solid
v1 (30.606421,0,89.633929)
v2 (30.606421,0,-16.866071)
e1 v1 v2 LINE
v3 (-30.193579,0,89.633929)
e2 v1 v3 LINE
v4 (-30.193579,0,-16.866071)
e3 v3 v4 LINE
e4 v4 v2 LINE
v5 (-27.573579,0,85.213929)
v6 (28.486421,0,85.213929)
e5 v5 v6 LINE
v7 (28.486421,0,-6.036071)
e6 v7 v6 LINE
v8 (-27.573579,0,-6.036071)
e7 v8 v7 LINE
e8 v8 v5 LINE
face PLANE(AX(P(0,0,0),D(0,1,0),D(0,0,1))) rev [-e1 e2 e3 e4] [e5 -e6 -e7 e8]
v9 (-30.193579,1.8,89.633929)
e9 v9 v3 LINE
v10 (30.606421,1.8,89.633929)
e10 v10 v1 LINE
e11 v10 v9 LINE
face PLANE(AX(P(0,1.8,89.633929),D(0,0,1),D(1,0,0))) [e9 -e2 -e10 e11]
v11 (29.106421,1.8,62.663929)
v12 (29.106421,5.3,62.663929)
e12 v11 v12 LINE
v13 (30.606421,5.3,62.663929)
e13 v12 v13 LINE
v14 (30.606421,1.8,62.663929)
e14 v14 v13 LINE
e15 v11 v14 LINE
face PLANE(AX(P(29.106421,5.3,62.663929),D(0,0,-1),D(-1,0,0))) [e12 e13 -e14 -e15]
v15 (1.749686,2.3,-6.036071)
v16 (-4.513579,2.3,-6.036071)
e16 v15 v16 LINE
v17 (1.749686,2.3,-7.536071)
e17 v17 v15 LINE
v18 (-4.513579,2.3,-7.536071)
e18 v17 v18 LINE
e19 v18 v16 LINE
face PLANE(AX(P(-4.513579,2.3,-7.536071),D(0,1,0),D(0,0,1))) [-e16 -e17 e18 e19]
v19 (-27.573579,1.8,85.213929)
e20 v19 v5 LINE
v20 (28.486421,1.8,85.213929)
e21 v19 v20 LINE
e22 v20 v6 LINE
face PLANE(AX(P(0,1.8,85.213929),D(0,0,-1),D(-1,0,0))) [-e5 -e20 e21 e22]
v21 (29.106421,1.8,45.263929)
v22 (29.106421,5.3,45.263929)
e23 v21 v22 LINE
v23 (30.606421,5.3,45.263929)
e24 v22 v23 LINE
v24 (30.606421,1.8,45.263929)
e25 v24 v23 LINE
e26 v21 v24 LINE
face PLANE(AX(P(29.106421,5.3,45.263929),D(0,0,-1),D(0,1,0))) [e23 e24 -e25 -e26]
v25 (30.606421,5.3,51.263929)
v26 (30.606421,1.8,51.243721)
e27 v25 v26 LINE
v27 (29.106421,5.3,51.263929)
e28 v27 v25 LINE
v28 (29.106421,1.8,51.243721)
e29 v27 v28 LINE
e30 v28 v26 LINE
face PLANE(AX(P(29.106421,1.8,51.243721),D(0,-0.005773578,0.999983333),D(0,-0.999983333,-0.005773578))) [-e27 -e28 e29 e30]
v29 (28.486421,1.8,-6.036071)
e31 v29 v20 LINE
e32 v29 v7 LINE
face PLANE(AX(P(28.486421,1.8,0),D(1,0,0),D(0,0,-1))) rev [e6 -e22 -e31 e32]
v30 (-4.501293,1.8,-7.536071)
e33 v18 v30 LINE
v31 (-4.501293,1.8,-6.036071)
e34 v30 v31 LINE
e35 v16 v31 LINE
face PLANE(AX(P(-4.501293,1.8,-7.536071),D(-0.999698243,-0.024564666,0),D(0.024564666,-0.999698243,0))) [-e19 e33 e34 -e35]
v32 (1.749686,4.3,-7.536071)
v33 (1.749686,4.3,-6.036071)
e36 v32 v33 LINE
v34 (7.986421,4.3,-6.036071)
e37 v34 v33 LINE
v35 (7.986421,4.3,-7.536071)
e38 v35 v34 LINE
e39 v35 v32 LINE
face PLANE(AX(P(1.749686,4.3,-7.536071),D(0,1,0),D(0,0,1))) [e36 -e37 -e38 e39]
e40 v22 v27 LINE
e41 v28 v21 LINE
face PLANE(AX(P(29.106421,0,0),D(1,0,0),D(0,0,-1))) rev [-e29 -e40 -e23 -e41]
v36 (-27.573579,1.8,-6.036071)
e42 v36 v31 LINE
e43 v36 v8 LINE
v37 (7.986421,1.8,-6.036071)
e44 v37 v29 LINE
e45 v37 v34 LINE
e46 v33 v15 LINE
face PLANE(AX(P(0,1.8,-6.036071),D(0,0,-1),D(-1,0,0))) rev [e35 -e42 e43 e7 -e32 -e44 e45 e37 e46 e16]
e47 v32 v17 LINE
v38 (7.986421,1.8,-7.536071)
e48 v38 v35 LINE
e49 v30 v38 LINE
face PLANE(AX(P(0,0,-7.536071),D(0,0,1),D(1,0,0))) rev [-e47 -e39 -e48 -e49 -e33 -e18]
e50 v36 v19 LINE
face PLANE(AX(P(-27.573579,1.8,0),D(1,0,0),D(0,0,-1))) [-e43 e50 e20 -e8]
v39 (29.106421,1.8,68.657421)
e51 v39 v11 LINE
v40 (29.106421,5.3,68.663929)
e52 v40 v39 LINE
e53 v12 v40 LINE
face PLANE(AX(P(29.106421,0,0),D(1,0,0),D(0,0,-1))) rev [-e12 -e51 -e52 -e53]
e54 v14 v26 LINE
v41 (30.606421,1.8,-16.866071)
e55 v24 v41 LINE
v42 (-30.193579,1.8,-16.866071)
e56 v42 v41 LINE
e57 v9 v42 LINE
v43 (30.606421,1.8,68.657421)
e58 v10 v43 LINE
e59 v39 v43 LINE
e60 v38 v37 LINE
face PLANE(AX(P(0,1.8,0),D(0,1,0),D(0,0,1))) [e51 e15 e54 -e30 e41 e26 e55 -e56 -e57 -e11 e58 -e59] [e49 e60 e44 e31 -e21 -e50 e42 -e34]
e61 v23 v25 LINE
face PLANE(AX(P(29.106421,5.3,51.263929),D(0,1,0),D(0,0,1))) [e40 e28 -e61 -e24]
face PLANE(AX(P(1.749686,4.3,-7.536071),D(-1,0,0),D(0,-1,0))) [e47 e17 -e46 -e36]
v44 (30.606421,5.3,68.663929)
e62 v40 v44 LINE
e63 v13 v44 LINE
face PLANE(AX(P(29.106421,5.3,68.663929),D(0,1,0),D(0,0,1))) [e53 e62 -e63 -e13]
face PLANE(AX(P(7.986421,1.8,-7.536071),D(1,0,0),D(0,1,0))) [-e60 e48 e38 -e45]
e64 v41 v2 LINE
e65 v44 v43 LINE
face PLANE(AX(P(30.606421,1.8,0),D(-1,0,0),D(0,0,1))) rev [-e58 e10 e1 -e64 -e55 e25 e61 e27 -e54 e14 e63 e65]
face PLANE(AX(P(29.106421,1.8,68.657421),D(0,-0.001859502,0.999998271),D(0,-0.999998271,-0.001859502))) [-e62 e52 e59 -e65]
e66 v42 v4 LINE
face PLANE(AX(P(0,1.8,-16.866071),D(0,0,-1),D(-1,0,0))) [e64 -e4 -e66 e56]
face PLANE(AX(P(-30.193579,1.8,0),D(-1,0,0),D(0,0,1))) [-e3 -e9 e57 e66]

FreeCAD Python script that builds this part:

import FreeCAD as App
import Part
import Sketcher
from FreeCAD import Vector
Q = App.Units.Quantity


def add_polygon(sketch, points):
    """Adds a closed chain of lines whose ends are joined by coincident constraints."""
    first, n = sketch.GeometryCount, len(points)
    for a, b in zip(points, points[1:] + points[:1]):
        sketch.addGeometry(Part.LineSegment(App.Vector(*a, 0), App.Vector(*b, 0)), False)
    for i in range(n):
        sketch.addConstraint(Sketcher.Constraint("Coincident", first + i, 2, first + (i + 1) % n, 1))

doc = App.newDocument("Part")
params = doc.addObject("Spreadsheet::Sheet", "Params")
for row, (alias, value) in enumerate([
    ("sketch1_width", "60.8 mm"),
    ("sketch1_height", "106.5 mm"),
    ("sketch1_width2", "56.06 mm"),
    ("sketch1_height2", "91.25 mm"),
    ("pad1_length", "1.8 mm"),
    ("sketch2_height", "2 mm"),
    ("sketch2_height2", "2.5 mm"),
    ("pad2_length", "1.5 mm"),
    ("sketch3_height", "6 mm"),
    ("sketch3_width", "3.5 mm"),
    ("pad3_length", "1.5 mm"),
], start=1):
    params.set(f"A{row}", alias)
    params.set(f"B{row}", "=" + value)
    params.setAlias(f"B{row}", alias)

body = doc.addObject("PartDesign::Body", "Body")

sketch1 = body.newObject("Sketcher::SketchObject", "Sketch")
sketch1.AttachmentSupport = (doc.getObject("XZ_Plane"), [""])
sketch1.MapMode = "FlatFace"
add_polygon(sketch1, [(31, -17), (-30, -17), (-30, 90), (31, 90)])
add_polygon(sketch1, [(-28, -6), (28, -6), (28, 85), (-28, 85)])
sketch1.addConstraint(Sketcher.Constraint("Horizontal", 0))
sketch1.addConstraint(Sketcher.Constraint("Vertical", 1))
sketch1.addConstraint(Sketcher.Constraint("Horizontal", 2))
sketch1.addConstraint(Sketcher.Constraint("Vertical", 3))
sketch1.addConstraint(Sketcher.Constraint("Horizontal", 4))
sketch1.addConstraint(Sketcher.Constraint("Vertical", 5))
sketch1.addConstraint(Sketcher.Constraint("Horizontal", 6))
sketch1.addConstraint(Sketcher.Constraint("Vertical", 7))
sketch1.addConstraint(Sketcher.Constraint("DistanceX", 0, 2, 0, 1, Q("60.8 mm")))
sketch1.addConstraint(Sketcher.Constraint("DistanceY", 1, 1, 1, 2, Q("106.5 mm")))
sketch1.addConstraint(Sketcher.Constraint("DistanceX", 4, 1, 4, 2, Q("56.06 mm")))
sketch1.addConstraint(Sketcher.Constraint("DistanceY", 5, 1, 5, 2, Q("91.25 mm")))
sketch1.addConstraint(Sketcher.Constraint("DistanceX", 4, 2, 3, 2, Q("2.12 mm")))
sketch1.addConstraint(Sketcher.Constraint("DistanceY", 3, 2, 4, 2, Q("10.83 mm")))
sketch1.addConstraint(Sketcher.Constraint("DistanceX", 0, 2, -1, 1, Q("30.193579 mm")))
sketch1.addConstraint(Sketcher.Constraint("DistanceY", 0, 2, -1, 1, Q("16.866071 mm")))
sketch1.setExpression("Constraints[16]", "Params.sketch1_width")
sketch1.setExpression("Constraints[17]", "Params.sketch1_height")
sketch1.setExpression("Constraints[18]", "Params.sketch1_width2")
sketch1.setExpression("Constraints[19]", "Params.sketch1_height2")
pad1 = body.newObject("PartDesign::Pad", "Pad")
pad1.Profile = sketch1
pad1.setExpression("Length", "Params.pad1_length")
pad1.Reversed = True

sketch2 = body.newObject("Sketcher::SketchObject", "Sketch001")
sketch2.AttachmentSupport = (doc.getObject("XY_Plane"), [""])
sketch2.MapMode = "FlatFace"
sketch2.AttachmentOffset = App.Placement(Vector(0, 0, -6.036071), App.Rotation())
add_polygon(sketch2, [(7.986421, 1.8), (7.986421, 4.3), (1.749686, 4.3), (1.749686, 2.3), (-4.513579, 2.3), (-4.501293, 1.8)])
sketch2.addConstraint(Sketcher.Constraint("Vertical", 0))
sketch2.addConstraint(Sketcher.Constraint("Horizontal", 1))
sketch2.addConstraint(Sketcher.Constraint("Vertical", 2))
sketch2.addConstraint(Sketcher.Constraint("Horizontal", 3))
sketch2.addConstraint(Sketcher.Constraint("Horizontal", 5))
sketch2.addConstraint(Sketcher.Constraint("DistanceY", 2, 2, 2, 1, Q("2 mm")))
sketch2.addConstraint(Sketcher.Constraint("DistanceY", 0, 1, 0, 2, Q("2.5 mm")))
sketch2.addConstraint(Sketcher.Constraint("DistanceY", -1, 1, 0, 2, Q("4.3 mm")))
sketch2.addConstraint(Sketcher.Constraint("DistanceX", 3, 2, 0, 2, Q("12.5 mm")))
sketch2.addConstraint(Sketcher.Constraint("Distance", 4, Q("0.500151 mm")))
sketch2.addConstraint(Sketcher.Constraint("DistanceX", 1, 2, 1, 1, Q("6.236735 mm")))
sketch2.addConstraint(Sketcher.Constraint("DistanceX", -1, 1, 0, 2, Q("7.986421 mm")))
sketch2.setExpression("Constraints[11]", "Params.sketch2_height")
sketch2.setExpression("Constraints[12]", "Params.sketch2_height2")
pad2 = body.newObject("PartDesign::Pad", "Pad001")
pad2.Profile = sketch2
pad2.setExpression("Length", "Params.pad2_length")
pad2.Reversed = True

sketch3 = body.newObject("Sketcher::SketchObject", "Sketch002")
sketch3.AttachmentSupport = (doc.getObject("YZ_Plane"), [""])
sketch3.MapMode = "FlatFace"
sketch3.AttachmentOffset = App.Placement(Vector(0, 0, 30.606421), App.Rotation())
add_polygon(sketch3, [(5.3, 68.7), (1.8, 68.7), (1.8, 62.7), (5.3, 62.7)])
add_polygon(sketch3, [(5.3, 51.3), (1.8, 51.2), (1.8, 45.3), (5.3, 45.3)])
sketch3.addConstraint(Sketcher.Constraint("Vertical", 1))
sketch3.addConstraint(Sketcher.Constraint("Horizontal", 2))
sketch3.addConstraint(Sketcher.Constraint("Vertical", 3))
sketch3.addConstraint(Sketcher.Constraint("Vertical", 5))
sketch3.addConstraint(Sketcher.Constraint("Horizontal", 6))
sketch3.addConstraint(Sketcher.Constraint("Vertical", 7))
sketch3.addConstraint(Sketcher.Constraint("Vertical", 1, 2, 4, 2))
sketch3.addConstraint(Sketcher.Constraint("Vertical", 3, 2, 6, 2))
sketch3.addConstraint(Sketcher.Constraint("Equal", 3, 7))
sketch3.addConstraint(Sketcher.Constraint("DistanceY", 3, 1, 3, 2, Q("6 mm")))
sketch3.addConstraint(Sketcher.Constraint("DistanceX", 2, 1, 2, 2, Q("3.5 mm")))
sketch3.addConstraint(Sketcher.Constraint("DistanceX", -1, 1, 0, 2, Q("1.8 mm")))
sketch3.addConstraint(Sketcher.Constraint("DistanceY", 5, 2, 1, 2, Q("17.4 mm")))
sketch3.addConstraint(Sketcher.Constraint("DistanceY", 1, 2, 1, 1, Q("5.993492 mm")))
sketch3.addConstraint(Sketcher.Constraint("DistanceY", 4, 2, 0, 2, Q("17.4137 mm")))
sketch3.addConstraint(Sketcher.Constraint("DistanceY", -1, 1, 0, 2, Q("68.657421 mm")))
sketch3.setExpression("Constraints[17]", "Params.sketch3_height")
sketch3.setExpression("Constraints[18]", "Params.sketch3_width")
pad3 = body.newObject("PartDesign::Pad", "Pad002")
pad3.Profile = sketch3
pad3.setExpression("Length", "Params.pad3_length")
pad3.Reversed = True

doc.recompute()
